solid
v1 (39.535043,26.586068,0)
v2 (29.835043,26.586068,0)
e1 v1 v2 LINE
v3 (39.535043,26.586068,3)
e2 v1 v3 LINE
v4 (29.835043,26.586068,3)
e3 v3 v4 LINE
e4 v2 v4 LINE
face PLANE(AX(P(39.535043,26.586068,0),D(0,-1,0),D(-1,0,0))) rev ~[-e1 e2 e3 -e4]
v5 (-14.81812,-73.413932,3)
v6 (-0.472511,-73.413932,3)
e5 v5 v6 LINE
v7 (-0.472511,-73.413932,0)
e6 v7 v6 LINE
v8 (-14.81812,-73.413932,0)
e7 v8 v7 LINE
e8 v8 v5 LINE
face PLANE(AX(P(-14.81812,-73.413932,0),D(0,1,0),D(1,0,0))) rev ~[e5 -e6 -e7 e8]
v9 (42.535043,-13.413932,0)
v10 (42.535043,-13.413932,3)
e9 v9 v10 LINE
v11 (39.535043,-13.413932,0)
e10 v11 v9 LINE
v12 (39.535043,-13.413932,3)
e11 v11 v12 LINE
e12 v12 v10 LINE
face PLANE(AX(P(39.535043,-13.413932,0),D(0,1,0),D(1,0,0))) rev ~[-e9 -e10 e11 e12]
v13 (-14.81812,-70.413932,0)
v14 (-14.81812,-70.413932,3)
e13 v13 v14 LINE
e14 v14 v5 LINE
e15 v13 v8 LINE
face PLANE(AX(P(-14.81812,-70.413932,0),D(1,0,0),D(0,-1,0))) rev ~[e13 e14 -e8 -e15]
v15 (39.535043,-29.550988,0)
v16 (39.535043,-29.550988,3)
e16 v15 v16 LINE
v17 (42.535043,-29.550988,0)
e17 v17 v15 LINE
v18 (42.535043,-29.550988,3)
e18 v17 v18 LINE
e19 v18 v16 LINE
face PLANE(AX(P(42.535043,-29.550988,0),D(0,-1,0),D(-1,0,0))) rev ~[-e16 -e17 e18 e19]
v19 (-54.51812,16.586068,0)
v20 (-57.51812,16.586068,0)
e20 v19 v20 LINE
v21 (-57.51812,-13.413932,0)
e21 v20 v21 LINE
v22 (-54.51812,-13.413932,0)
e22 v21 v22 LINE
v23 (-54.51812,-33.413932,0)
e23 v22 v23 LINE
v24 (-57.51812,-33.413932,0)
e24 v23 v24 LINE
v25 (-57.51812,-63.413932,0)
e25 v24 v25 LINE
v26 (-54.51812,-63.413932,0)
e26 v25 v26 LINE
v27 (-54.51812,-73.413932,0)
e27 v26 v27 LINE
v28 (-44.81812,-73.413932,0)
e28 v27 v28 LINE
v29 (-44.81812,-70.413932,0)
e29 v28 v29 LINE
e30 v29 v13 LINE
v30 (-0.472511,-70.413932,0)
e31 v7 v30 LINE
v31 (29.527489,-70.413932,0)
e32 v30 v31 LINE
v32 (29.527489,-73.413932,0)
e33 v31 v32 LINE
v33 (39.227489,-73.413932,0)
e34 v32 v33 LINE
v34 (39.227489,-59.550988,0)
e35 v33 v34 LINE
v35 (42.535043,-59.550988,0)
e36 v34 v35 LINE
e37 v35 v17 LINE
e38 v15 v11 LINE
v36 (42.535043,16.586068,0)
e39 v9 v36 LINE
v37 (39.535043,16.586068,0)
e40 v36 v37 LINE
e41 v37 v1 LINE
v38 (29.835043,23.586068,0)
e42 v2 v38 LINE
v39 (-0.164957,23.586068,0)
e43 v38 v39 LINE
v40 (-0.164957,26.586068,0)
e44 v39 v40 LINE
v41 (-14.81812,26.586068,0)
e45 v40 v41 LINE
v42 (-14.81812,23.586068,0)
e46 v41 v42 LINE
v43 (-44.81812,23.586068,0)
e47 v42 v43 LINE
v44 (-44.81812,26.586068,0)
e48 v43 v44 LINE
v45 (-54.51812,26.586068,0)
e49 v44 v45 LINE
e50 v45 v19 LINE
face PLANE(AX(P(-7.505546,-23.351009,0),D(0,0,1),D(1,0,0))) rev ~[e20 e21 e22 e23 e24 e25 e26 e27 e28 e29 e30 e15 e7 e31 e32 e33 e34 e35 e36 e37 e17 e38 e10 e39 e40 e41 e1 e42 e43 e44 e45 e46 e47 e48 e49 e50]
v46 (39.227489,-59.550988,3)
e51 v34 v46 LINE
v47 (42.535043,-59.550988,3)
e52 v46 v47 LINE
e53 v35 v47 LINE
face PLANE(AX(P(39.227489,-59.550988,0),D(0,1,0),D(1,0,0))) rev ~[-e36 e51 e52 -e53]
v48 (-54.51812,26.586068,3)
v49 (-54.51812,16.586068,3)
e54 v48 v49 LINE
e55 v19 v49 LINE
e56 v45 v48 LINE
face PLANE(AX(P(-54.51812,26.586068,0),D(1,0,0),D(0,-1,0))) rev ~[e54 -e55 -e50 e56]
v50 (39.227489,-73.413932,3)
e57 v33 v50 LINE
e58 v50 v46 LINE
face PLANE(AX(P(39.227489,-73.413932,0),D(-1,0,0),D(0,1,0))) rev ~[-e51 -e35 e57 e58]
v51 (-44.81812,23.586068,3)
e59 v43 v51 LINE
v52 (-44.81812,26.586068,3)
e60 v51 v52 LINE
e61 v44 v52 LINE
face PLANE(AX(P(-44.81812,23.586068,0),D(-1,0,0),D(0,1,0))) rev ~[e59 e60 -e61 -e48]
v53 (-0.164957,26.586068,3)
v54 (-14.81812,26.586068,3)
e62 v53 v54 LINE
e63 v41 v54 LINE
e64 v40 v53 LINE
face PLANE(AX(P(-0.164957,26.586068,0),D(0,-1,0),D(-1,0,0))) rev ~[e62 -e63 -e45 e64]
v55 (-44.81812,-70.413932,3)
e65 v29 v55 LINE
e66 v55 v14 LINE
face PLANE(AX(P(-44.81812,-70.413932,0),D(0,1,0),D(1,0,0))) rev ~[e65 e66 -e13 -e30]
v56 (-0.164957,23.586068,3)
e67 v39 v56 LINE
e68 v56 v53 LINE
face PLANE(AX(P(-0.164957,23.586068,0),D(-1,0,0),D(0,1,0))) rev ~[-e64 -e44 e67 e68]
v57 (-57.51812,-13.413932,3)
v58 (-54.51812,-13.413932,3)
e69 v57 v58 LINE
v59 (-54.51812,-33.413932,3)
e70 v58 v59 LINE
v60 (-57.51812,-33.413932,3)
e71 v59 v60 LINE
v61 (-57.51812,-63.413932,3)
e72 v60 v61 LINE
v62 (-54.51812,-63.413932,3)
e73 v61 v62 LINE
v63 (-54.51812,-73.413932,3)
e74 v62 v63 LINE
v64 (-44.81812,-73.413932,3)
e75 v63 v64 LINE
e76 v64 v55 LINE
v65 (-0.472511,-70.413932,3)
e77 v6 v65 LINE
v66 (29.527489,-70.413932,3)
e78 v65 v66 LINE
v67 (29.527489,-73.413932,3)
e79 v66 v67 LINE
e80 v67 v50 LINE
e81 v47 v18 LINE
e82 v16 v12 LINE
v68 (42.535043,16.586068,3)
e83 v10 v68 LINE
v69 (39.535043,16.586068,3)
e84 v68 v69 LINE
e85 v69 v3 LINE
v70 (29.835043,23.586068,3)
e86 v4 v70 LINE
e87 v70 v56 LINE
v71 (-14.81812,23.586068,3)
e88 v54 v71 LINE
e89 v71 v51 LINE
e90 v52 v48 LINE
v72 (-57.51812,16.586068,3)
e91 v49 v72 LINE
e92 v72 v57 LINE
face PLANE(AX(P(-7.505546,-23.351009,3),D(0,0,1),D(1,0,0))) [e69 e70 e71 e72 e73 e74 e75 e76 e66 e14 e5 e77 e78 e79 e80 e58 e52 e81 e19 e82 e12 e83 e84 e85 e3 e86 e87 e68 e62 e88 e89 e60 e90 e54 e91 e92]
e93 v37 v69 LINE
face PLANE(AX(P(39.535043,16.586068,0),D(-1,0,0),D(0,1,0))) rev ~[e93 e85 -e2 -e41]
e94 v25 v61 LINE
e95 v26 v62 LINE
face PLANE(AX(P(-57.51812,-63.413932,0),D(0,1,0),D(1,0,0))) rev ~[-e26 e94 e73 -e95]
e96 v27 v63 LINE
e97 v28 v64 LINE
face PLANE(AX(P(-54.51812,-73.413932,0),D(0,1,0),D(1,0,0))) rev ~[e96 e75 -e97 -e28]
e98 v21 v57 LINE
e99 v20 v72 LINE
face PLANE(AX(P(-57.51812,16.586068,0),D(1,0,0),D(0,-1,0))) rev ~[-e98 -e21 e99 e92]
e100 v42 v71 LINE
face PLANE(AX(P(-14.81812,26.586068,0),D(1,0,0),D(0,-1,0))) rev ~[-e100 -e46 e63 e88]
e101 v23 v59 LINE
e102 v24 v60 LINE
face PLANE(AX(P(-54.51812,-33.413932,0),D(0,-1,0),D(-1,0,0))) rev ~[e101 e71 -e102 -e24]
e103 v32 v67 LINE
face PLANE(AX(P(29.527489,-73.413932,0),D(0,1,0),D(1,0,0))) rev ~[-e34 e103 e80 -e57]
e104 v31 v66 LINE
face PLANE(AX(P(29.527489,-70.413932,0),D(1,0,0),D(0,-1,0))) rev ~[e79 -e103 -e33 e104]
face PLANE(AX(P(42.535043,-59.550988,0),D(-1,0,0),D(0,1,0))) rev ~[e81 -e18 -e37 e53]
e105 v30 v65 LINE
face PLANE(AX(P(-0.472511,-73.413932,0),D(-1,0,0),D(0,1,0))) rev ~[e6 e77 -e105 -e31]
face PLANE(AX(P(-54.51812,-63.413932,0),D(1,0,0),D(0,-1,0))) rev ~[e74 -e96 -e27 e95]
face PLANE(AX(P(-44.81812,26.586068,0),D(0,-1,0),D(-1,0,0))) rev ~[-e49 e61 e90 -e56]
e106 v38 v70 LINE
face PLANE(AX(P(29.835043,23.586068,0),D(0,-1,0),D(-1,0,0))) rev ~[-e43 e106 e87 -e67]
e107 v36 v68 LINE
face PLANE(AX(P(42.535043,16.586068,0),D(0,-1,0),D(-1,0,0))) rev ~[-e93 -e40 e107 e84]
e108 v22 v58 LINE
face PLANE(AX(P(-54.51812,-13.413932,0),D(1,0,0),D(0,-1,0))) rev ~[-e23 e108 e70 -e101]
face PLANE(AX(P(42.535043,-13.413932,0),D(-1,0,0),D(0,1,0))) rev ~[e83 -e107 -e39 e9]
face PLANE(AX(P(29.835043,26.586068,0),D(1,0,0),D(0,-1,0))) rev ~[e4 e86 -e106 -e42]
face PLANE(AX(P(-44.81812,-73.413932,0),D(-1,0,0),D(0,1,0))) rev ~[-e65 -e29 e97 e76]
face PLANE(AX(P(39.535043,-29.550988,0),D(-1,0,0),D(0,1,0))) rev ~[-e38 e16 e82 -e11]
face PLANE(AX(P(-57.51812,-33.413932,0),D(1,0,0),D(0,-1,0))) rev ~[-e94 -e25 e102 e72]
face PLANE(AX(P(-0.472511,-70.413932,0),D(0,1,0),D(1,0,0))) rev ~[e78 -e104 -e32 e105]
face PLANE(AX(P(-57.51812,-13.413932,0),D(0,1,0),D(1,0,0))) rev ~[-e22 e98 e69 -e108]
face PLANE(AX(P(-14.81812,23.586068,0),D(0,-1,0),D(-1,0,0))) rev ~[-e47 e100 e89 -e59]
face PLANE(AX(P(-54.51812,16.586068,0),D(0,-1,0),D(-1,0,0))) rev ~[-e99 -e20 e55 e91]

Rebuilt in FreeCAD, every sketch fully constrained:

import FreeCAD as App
import Part
import Sketcher

V = App.Vector
Q = App.Units.Quantity

doc = App.newDocument("Part")
params = doc.addObject("Spreadsheet::Sheet", "Params")
for row, (alias, value) in enumerate([
    ("sketch1_width", "3 mm"),
    ("sketch1_width2", "30 mm"),
    ("sketch1_height", "10 mm"),
    ("sketch1_height2", "20 mm"),
    ("sketch1_width3", "9.7 mm"),
    ("pad1_length", "3 mm"),
], start=1):
    params.set(f"A{row}", alias)
    params.set(f"B{row}", "=" + value)
    params.setAlias(f"B{row}", alias)

body = doc.addObject("PartDesign::Body", "Body")

# Sketch on XY plane
sketch1 = body.newObject("Sketcher::SketchObject", "Sketch")
sketch1.AttachmentSupport = (doc.getObject("XY_Plane"), [""])
sketch1.MapMode = "FlatFace"
sketch1.addGeometry([
    Part.LineSegment(V(-57.5, -33.4, 0), V(-57.5, -63.4, 0)),  # 0
    Part.LineSegment(V(-57.5, -63.4, 0), V(-54.5, -63.4, 0)),  # 1
    Part.LineSegment(V(-54.5, -63.4, 0), V(-54.5, -73.4, 0)),  # 2
    Part.LineSegment(V(-54.5, -73.4, 0), V(-44.8, -73.4, 0)),  # 3
    Part.LineSegment(V(-44.8, -73.4, 0), V(-44.8, -70.4, 0)),  # 4
    Part.LineSegment(V(-44.8, -70.4, 0), V(-14.8, -70.4, 0)),  # 5
    Part.LineSegment(V(-14.8, -70.4, 0), V(-14.8, -73.4, 0)),  # 6
    Part.LineSegment(V(-14.8, -73.4, 0), V(-0.5, -73.4, 0)),  # 7
    Part.LineSegment(V(-0.5, -73.4, 0), V(-0.5, -70.4, 0)),  # 8
    Part.LineSegment(V(-0.5, -70.4, 0), V(29.5, -70.4, 0)),  # 9
    Part.LineSegment(V(29.5, -70.4, 0), V(29.5, -73.4, 0)),  # 10
    Part.LineSegment(V(29.5, -73.4, 0), V(39.2, -73.4, 0)),  # 11
    Part.LineSegment(V(39.2, -73.4, 0), V(39.2, -59.6, 0)),  # 12
    Part.LineSegment(V(39.2, -59.6, 0), V(42.5, -59.6, 0)),  # 13
    Part.LineSegment(V(42.5, -59.6, 0), V(42.5, -29.6, 0)),  # 14
    Part.LineSegment(V(42.5, -29.6, 0), V(39.5, -29.6, 0)),  # 15
    Part.LineSegment(V(39.5, -29.6, 0), V(39.5, -13.4, 0)),  # 16
    Part.LineSegment(V(39.5, -13.4, 0), V(42.5, -13.4, 0)),  # 17
    Part.LineSegment(V(42.5, -13.4, 0), V(42.5, 16.6, 0)),  # 18
    Part.LineSegment(V(42.5, 16.6, 0), V(39.5, 16.6, 0)),  # 19
    Part.LineSegment(V(39.5, 16.6, 0), V(39.5, 26.6, 0)),  # 20
    Part.LineSegment(V(39.5, 26.6, 0), V(29.8, 26.6, 0)),  # 21
    Part.LineSegment(V(29.8, 26.6, 0), V(29.8, 23.6, 0)),  # 22
    Part.LineSegment(V(29.8, 23.6, 0), V(-0.2, 23.6, 0)),  # 23
    Part.LineSegment(V(-0.2, 23.6, 0), V(-0.2, 26.6, 0)),  # 24
    Part.LineSegment(V(-0.2, 26.6, 0), V(-14.8, 26.6, 0)),  # 25
    Part.LineSegment(V(-14.8, 26.6, 0), V(-14.8, 23.6, 0)),  # 26
    Part.LineSegment(V(-14.8, 23.6, 0), V(-44.8, 23.6, 0)),  # 27
    Part.LineSegment(V(-44.8, 23.6, 0), V(-44.8, 26.6, 0)),  # 28
    Part.LineSegment(V(-44.8, 26.6, 0), V(-54.5, 26.6, 0)),  # 29
    Part.LineSegment(V(-54.5, 26.6, 0), V(-54.5, 16.6, 0)),  # 30
    Part.LineSegment(V(-54.5, 16.6, 0), V(-57.5, 16.6, 0)),  # 31
    Part.LineSegment(V(-57.5, 16.6, 0), V(-57.5, -13.4, 0)),  # 32
    Part.LineSegment(V(-57.5, -13.4, 0), V(-54.5, -13.4, 0)),  # 33
    Part.LineSegment(V(-54.5, -13.4, 0), V(-54.5, -33.4, 0)),  # 34
    Part.LineSegment(V(-54.5, -33.4, 0), V(-57.5, -33.4, 0)),  # 35
], False)
sketch1.addConstraint([
    Sketcher.Constraint("Coincident", 0, 2, 1, 1),
    Sketcher.Constraint("Coincident", 1, 2, 2, 1),
    Sketcher.Constraint("Coincident", 2, 2, 3, 1),
    Sketcher.Constraint("Coincident", 3, 2, 4, 1),
    Sketcher.Constraint("Coincident", 4, 2, 5, 1),
    Sketcher.Constraint("Coincident", 5, 2, 6, 1),
    Sketcher.Constraint("Coincident", 6, 2, 7, 1),
    Sketcher.Constraint("Coincident", 7, 2, 8, 1),
    Sketcher.Constraint("Coincident", 8, 2, 9, 1),
    Sketcher.Constraint("Coincident", 9, 2, 10, 1),
    Sketcher.Constraint("Coincident", 10, 2, 11, 1),
    Sketcher.Constraint("Coincident", 11, 2, 12, 1),
    Sketcher.Constraint("Coincident", 12, 2, 13, 1),
    Sketcher.Constraint("Coincident", 13, 2, 14, 1),
    Sketcher.Constraint("Coincident", 14, 2, 15, 1),
    Sketcher.Constraint("Coincident", 15, 2, 16, 1),
    Sketcher.Constraint("Coincident", 16, 2, 17, 1),
    Sketcher.Constraint("Coincident", 17, 2, 18, 1),
    Sketcher.Constraint("Coincident", 18, 2, 19, 1),
    Sketcher.Constraint("Coincident", 19, 2, 20, 1),
    Sketcher.Constraint("Coincident", 20, 2, 21, 1),
    Sketcher.Constraint("Coincident", 21, 2, 22, 1),
    Sketcher.Constraint("Coincident", 22, 2, 23, 1),
    Sketcher.Constraint("Coincident", 23, 2, 24, 1),
    Sketcher.Constraint("Coincident", 24, 2, 25, 1),
    Sketcher.Constraint("Coincident", 25, 2, 26, 1),
    Sketcher.Constraint("Coincident", 26, 2, 27, 1),
    Sketcher.Constraint("Coincident", 27, 2, 28, 1),
    Sketcher.Constraint("Coincident", 28, 2, 29, 1),
    Sketcher.Constraint("Coincident", 29, 2, 30, 1),
    Sketcher.Constraint("Coincident", 30, 2, 31, 1),
    Sketcher.Constraint("Coincident", 31, 2, 32, 1),
    Sketcher.Constraint("Coincident", 32, 2, 33, 1),
    Sketcher.Constraint("Coincident", 33, 2, 34, 1),
    Sketcher.Constraint("Coincident", 34, 2, 35, 1),
    Sketcher.Constraint("Coincident", 35, 2, 0, 1),
    Sketcher.Constraint("Vertical", 0),
    Sketcher.Constraint("Horizontal", 1),
    Sketcher.Constraint("Vertical", 2),
    Sketcher.Constraint("Horizontal", 3),
    Sketcher.Constraint("Vertical", 4),
    Sketcher.Constraint("Horizontal", 5),
    Sketcher.Constraint("Vertical", 6),
    Sketcher.Constraint("Horizontal", 7),
    Sketcher.Constraint("Vertical", 8),
    Sketcher.Constraint("Horizontal", 9),
    Sketcher.Constraint("Vertical", 10),
    Sketcher.Constraint("Horizontal", 11),
    Sketcher.Constraint("Vertical", 12),
    Sketcher.Constraint("Horizontal", 13),
    Sketcher.Constraint("Vertical", 14),
    Sketcher.Constraint("Horizontal", 15),
    Sketcher.Constraint("Vertical", 16),
    Sketcher.Constraint("Horizontal", 17),
    Sketcher.Constraint("Vertical", 18),
    Sketcher.Constraint("Horizontal", 19),
    Sketcher.Constraint("Vertical", 20),
    Sketcher.Constraint("Horizontal", 21),
    Sketcher.Constraint("Vertical", 22),
    Sketcher.Constraint("Horizontal", 23),
    Sketcher.Constraint("Vertical", 24),
    Sketcher.Constraint("Horizontal", 25),
    Sketcher.Constraint("Vertical", 26),
    Sketcher.Constraint("Horizontal", 27),
    Sketcher.Constraint("Vertical", 28),
    Sketcher.Constraint("Horizontal", 29),
    Sketcher.Constraint("Vertical", 30),
    Sketcher.Constraint("Horizontal", 31),
    Sketcher.Constraint("Vertical", 32),
    Sketcher.Constraint("Horizontal", 33),
    Sketcher.Constraint("Vertical", 34),
    Sketcher.Constraint("Horizontal", 35),
    Sketcher.Constraint("Horizontal", 3, 2, 6, 2),
    Sketcher.Constraint("Horizontal", 5, 2, 8, 2),
    Sketcher.Constraint("Horizontal", 7, 2, 10, 2),
    Sketcher.Constraint("Horizontal", 21, 2, 24, 2),
    Sketcher.Constraint("Horizontal", 23, 2, 26, 2),
    Sketcher.Constraint("Horizontal", 25, 2, 28, 2),
    Sketcher.Constraint("Horizontal", 19, 2, 30, 2),
    Sketcher.Constraint("Horizontal", 17, 2, 32, 2),
    Sketcher.Constraint("Vertical", 14, 2, 17, 2),
    Sketcher.Constraint("Vertical", 16, 2, 19, 2),
    Sketcher.Constraint("Vertical", 6, 2, 25, 2),
    Sketcher.Constraint("Vertical", 4, 2, 27, 2),
    Sketcher.Constraint("Vertical", 2, 2, 29, 2),
    Sketcher.Constraint("Vertical", 0, 2, 31, 2),
    Sketcher.Constraint("Vertical", 30, 2, 33, 2),
    Sketcher.Constraint("Equal", 5, 9),
    Sketcher.Constraint("Equal", 3, 11),
    Sketcher.Constraint("Equal", 1, 15),
    Sketcher.Constraint("Equal", 11, 21),
    Sketcher.Constraint("Equal", 9, 23),
    Sketcher.Constraint("Equal", 27, 0),
    Sketcher.Constraint("Equal", 35, 4),
    Sketcher.Constraint("Equal", 0, 14),
    Sketcher.Constraint("Equal", 14, 18),
    Sketcher.Constraint("Equal", 2, 20),
    Sketcher.Constraint("Equal", 10, 22),
    Sketcher.Constraint("DistanceX", 1, 1, 1, 2, Q("3 mm")),
    Sketcher.Constraint("DistanceX", 5, 1, 5, 2, Q("30 mm")),
    Sketcher.Constraint("DistanceY", 2, 2, 2, 1, Q("10 mm")),
    Sketcher.Constraint("DistanceY", 34, 2, 34, 1, Q("20 mm")),
    Sketcher.Constraint("DistanceX", 3, 1, 3, 2, Q("9.7 mm")),
    Sketcher.Constraint("DistanceX", 7, 1, 7, 2, Q("14.34561 mm")),
    Sketcher.Constraint("DistanceX", 13, 1, 13, 2, Q("3.307554 mm")),
    Sketcher.Constraint("DistanceY", 12, 1, 12, 2, Q("13.862944 mm")),
    Sketcher.Constraint("DistanceX", 0, 2, -1, 1, Q("57.51812 mm")),
    Sketcher.Constraint("DistanceY", 12, 2, -1, 1, Q("59.550988 mm")),
])
sketch1.setExpression("Constraints[98]", "Params.sketch1_width")
sketch1.setExpression("Constraints[99]", "Params.sketch1_width2")
sketch1.setExpression("Constraints[100]", "Params.sketch1_height")
sketch1.setExpression("Constraints[101]", "Params.sketch1_height2")
sketch1.setExpression("Constraints[102]", "Params.sketch1_width3")
pad1 = body.newObject("PartDesign::Pad", "Pad")
pad1.Profile = sketch1
pad1.setExpression("Length", "Params.pad1_length")

doc.recompute()
